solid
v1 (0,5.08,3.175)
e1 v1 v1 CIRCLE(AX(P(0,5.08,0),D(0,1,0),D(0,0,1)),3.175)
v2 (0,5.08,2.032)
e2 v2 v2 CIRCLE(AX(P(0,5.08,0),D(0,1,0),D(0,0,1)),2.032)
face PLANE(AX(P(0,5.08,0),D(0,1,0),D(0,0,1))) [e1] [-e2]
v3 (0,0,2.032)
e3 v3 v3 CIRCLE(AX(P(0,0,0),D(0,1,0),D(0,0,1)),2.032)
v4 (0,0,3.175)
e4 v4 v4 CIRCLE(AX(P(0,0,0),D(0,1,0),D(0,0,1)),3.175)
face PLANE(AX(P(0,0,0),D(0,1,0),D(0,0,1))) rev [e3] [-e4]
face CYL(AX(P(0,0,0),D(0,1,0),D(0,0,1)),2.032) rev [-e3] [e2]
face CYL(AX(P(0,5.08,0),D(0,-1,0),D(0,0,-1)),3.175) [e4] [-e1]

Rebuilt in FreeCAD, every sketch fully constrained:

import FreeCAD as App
import Part
import Sketcher
from FreeCAD import Vector
Q = App.Units.Quantity

doc = App.newDocument("Part")
params = doc.addObject("Spreadsheet::Sheet", "Params")
for row, (alias, value) in enumerate([
    ("sketch1_diameter", "0.25 in"),
    ("pad1_length", "0.2 in"),
    ("sketch2_diameter", "0.16 in"),
], start=1):
    params.set(f"A{row}", alias)
    params.set(f"B{row}", "=" + value)
    params.setAlias(f"B{row}", alias)

body = doc.addObject("PartDesign::Body", "Body")

sketch1 = body.newObject("Sketcher::SketchObject", "Sketch")
sketch1.AttachmentSupport = (doc.getObject("XZ_Plane"), [""])
sketch1.MapMode = "FlatFace"
sketch1.addGeometry(Part.Circle(Vector(0, 0, 0), Vector(0, 0, 1), 3.2), False)
sketch1.addConstraint(Sketcher.Constraint("Coincident", 0, 3, -1, 1))
sketch1.addConstraint(Sketcher.Constraint("Diameter", 0, Q("0.25 in")))
sketch1.setExpression("Constraints[1]", "Params.sketch1_diameter")
pad1 = body.newObject("PartDesign::Pad", "Pad")
pad1.Profile = sketch1
pad1.setExpression("Length", "Params.pad1_length")
pad1.Reversed = True

sketch2 = body.newObject("Sketcher::SketchObject", "Sketch001")
sketch2.AttachmentSupport = (doc.getObject("XZ_Plane"), [""])
sketch2.MapMode = "FlatFace"
sketch2.AttachmentOffset = App.Placement(Vector(0, 0, -0.2 * 25.4), App.Rotation())
sketch2.addGeometry(Part.Circle(Vector(0, 0, 0), Vector(0, 0, 1), 2), False)
sketch2.addConstraint(Sketcher.Constraint("Coincident", 0, 3, -1, 1))
sketch2.addConstraint(Sketcher.Constraint("Diameter", 0, Q("0.16 in")))
sketch2.setExpression("Constraints[1]", "Params.sketch2_diameter")
pocket1 = body.newObject("PartDesign::Pocket", "Pocket")
pocket1.Profile = sketch2
pocket1.Type = "ThroughAll"
pocket1.Reversed = True

doc.recompute()
